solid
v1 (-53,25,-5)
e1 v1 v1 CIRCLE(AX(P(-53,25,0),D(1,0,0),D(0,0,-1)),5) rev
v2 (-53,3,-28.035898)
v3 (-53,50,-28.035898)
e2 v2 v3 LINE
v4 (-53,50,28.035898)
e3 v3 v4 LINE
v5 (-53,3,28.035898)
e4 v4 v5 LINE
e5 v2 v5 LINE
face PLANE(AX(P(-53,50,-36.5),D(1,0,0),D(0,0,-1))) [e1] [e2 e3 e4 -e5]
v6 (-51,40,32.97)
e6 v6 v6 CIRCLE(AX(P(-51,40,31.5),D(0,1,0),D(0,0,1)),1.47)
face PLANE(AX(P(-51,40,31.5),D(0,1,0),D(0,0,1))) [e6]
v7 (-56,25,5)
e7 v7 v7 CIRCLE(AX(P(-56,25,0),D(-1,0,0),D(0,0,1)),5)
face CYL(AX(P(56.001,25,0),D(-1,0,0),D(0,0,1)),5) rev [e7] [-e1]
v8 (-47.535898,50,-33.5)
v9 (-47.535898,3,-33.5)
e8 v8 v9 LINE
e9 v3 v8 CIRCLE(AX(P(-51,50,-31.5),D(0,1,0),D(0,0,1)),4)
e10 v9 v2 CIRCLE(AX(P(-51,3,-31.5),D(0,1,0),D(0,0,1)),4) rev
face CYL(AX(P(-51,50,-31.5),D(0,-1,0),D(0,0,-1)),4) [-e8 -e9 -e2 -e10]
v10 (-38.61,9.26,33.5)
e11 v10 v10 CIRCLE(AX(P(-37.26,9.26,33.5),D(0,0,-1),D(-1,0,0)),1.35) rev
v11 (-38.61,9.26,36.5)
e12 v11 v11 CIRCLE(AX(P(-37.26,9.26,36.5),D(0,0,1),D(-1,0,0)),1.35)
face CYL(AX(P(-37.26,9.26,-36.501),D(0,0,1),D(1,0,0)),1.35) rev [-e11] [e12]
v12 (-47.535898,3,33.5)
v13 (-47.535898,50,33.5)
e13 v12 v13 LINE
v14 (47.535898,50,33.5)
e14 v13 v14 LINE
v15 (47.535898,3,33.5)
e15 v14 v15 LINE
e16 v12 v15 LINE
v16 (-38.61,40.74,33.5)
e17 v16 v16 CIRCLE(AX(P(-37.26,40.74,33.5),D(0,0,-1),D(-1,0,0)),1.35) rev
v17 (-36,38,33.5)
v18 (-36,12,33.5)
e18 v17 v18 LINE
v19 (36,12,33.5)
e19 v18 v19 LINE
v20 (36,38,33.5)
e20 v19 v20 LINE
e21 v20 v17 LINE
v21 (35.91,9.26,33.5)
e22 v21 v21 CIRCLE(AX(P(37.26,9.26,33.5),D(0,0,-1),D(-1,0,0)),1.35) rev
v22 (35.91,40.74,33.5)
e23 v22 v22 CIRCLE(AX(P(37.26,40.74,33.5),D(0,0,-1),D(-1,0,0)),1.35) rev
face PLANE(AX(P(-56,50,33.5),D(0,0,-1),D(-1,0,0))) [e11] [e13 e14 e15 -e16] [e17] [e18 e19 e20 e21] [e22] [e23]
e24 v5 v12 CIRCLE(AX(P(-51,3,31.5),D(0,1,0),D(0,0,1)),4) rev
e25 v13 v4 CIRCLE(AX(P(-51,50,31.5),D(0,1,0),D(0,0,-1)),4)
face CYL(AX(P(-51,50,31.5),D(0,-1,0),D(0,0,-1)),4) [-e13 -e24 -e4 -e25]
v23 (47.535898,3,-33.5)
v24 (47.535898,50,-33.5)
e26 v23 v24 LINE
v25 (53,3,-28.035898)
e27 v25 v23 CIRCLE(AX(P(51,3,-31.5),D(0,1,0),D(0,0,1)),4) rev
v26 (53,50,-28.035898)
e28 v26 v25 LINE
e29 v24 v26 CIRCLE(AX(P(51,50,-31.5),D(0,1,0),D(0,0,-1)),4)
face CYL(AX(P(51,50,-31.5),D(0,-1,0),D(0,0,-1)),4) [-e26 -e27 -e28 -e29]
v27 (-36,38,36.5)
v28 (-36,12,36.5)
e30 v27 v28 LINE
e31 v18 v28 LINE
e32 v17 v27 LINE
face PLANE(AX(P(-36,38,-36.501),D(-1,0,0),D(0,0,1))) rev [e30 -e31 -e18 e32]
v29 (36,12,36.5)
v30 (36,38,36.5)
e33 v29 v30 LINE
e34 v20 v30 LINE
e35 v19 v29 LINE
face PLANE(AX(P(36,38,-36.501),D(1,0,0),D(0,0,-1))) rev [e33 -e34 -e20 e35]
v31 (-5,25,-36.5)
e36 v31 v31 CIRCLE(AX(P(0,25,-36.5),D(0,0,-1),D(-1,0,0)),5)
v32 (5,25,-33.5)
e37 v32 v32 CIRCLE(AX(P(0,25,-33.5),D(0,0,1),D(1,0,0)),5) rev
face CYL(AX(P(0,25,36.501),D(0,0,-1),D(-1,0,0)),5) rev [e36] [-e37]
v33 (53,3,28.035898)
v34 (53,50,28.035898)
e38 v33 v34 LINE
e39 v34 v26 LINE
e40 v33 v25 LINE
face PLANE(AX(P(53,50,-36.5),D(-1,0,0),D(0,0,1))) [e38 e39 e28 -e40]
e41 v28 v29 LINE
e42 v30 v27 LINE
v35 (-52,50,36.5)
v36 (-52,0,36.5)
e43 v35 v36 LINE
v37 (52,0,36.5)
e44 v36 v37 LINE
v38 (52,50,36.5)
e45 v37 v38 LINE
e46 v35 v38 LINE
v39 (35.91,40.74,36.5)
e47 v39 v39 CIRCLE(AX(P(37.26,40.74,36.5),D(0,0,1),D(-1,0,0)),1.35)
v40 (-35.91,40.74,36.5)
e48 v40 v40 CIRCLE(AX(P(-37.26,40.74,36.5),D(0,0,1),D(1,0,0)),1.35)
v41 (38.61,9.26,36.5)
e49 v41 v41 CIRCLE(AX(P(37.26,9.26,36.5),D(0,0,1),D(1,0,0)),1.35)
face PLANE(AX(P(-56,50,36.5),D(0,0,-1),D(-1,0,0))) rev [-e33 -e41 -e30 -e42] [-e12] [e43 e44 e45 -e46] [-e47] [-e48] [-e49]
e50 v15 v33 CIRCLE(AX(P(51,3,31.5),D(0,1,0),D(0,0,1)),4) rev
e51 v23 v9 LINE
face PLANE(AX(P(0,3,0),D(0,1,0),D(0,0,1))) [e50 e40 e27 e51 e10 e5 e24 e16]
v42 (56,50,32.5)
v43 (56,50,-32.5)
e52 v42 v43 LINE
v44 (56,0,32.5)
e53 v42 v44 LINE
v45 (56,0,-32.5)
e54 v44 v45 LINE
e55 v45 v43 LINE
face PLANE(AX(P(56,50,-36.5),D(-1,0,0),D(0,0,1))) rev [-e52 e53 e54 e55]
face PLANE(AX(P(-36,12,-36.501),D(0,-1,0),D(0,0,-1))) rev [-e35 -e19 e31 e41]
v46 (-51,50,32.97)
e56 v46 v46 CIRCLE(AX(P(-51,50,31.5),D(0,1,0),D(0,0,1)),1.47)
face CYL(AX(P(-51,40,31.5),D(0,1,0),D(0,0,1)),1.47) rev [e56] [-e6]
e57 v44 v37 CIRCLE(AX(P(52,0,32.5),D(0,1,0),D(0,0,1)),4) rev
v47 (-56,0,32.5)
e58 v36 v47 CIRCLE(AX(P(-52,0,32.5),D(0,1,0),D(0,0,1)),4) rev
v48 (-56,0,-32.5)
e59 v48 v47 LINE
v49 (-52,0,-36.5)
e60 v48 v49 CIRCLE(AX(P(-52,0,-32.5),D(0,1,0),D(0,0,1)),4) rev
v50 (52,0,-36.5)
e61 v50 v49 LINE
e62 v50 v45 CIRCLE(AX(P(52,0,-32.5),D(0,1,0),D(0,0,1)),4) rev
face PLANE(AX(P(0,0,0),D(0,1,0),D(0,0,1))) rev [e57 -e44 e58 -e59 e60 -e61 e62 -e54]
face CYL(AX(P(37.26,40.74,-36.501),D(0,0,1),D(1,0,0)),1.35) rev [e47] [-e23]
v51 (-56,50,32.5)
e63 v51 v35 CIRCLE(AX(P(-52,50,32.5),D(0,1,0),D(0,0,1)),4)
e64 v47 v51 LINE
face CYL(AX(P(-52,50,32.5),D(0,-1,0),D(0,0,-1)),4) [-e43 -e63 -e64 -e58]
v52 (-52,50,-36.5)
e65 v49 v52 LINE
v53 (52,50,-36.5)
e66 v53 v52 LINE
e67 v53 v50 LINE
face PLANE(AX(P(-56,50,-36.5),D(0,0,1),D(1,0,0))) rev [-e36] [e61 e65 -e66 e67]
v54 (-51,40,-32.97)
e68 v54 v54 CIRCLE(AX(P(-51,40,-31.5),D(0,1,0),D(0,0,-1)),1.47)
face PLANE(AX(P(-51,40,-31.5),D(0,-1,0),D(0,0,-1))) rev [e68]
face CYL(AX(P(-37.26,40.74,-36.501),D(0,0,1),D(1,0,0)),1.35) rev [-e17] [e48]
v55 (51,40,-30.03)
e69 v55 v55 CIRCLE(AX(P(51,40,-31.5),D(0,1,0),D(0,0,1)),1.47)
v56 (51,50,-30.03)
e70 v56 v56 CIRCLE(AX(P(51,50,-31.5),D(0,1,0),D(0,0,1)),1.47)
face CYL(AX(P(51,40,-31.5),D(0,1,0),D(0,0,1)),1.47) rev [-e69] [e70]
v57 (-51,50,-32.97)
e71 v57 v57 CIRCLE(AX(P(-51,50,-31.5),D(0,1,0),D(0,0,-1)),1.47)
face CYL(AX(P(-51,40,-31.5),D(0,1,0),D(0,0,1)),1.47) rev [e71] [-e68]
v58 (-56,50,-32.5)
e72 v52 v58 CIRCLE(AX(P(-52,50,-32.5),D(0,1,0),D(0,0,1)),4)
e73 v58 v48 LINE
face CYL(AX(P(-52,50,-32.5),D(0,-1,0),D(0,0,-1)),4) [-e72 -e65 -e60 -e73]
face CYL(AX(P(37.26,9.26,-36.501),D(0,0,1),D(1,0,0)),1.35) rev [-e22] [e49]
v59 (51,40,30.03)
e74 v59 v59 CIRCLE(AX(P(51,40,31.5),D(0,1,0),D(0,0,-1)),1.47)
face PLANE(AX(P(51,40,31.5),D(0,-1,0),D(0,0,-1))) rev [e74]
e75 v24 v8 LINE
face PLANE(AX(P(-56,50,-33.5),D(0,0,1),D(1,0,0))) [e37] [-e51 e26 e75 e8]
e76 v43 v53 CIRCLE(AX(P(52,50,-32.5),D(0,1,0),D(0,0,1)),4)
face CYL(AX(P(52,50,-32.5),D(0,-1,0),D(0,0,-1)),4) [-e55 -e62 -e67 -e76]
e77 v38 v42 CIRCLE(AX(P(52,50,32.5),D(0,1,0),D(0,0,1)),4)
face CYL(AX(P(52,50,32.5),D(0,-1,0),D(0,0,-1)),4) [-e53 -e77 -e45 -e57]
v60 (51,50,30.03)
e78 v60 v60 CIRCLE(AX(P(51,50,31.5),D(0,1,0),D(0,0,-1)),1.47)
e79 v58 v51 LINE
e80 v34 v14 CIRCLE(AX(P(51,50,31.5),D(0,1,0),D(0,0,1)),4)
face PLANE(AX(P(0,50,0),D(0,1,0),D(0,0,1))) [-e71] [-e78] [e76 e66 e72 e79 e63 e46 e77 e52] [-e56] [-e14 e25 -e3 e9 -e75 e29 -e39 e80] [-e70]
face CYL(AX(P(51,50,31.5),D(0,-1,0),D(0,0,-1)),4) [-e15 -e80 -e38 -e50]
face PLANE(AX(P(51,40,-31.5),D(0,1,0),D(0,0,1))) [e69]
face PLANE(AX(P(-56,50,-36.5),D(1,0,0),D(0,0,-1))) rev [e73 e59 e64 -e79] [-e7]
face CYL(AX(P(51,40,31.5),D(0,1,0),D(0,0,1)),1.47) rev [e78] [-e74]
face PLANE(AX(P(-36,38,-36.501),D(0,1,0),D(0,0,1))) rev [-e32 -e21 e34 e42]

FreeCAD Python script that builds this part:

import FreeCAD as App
import Part
import Sketcher

V = App.Vector
Q = App.Units.Quantity


def edges_at(feature, points):
    """Names of the edges that pass closest to the given points."""
    edges = feature.Shape.Edges
    near = lambda p: min(range(len(edges)), key=lambda i: edges[i].distToShape(Part.Vertex(*p))[0])
    return sorted({f"Edge{near(p) + 1}" for p in points})


def faces_at(feature, points):
    """Names of the faces that lie closest to the given points."""
    faces = feature.Shape.Faces
    near = lambda p: min(range(len(faces)), key=lambda i: faces[i].distToShape(Part.Vertex(*p))[0])
    return sorted({f"Face{near(p) + 1}" for p in points})

doc = App.newDocument("Part")
body = doc.addObject("PartDesign::Body", "Body")

sketch1 = doc.addObject("Sketcher::SketchObject", "Sketch")
body.addObject(sketch1)
sketch1.AttachmentSupport = (doc.XZ_Plane, [""])
sketch1.MapMode = "FlatFace"
sketch1.addGeometry(Part.LineSegment(V(-56, -36, 0), V(-56, 36, 0)), False)
sketch1.addGeometry(Part.LineSegment(V(-56, 36, 0), V(56, 36, 0)), False)
sketch1.addGeometry(Part.LineSegment(V(56, 36, 0), V(56, -36, 0)), False)
sketch1.addGeometry(Part.LineSegment(V(56, -36, 0), V(-56, -36, 0)), False)
sketch1.addConstraint(Sketcher.Constraint("Coincident", 0, 2, 1, 1))
sketch1.addConstraint(Sketcher.Constraint("Coincident", 1, 2, 2, 1))
sketch1.addConstraint(Sketcher.Constraint("Coincident", 2, 2, 3, 1))
sketch1.addConstraint(Sketcher.Constraint("Coincident", 3, 2, 0, 1))
sketch1.addConstraint(Sketcher.Constraint("Vertical", 0))
sketch1.addConstraint(Sketcher.Constraint("Horizontal", 1))
sketch1.addConstraint(Sketcher.Constraint("Vertical", 2))
sketch1.addConstraint(Sketcher.Constraint("Horizontal", 3))
sketch1.addConstraint(Sketcher.Constraint("Symmetric", 0, 2, 2, 2, -1, 1))
sketch1.addConstraint(Sketcher.Constraint("DistanceX", 1, 1, 1, 2, Q("112 mm")))
sketch1.addConstraint(Sketcher.Constraint("DistanceY", 0, 1, 0, 2, Q("73 mm")))
pad1 = doc.addObject("PartDesign::Pad", "Pad")
body.addObject(pad1)
pad1.Profile = sketch1
pad1.Length = 50
pad1.Reversed = True
doc.recompute()

thickness = doc.addObject("PartDesign::Thickness", "Thickness")
body.addObject(thickness)
thickness.Base = (pad1, faces_at(pad1, [(0, 50, 0)]))
thickness.Value = 3
thickness.Reversed = True
thickness.Join = "Intersection"

sketch2 = doc.addObject("Sketcher::SketchObject", "Sketch001")
body.addObject(sketch2)
sketch2.AttachmentSupport = (doc.XZ_Plane, [""])
sketch2.MapMode = "FlatFace"
sketch2.AttachmentOffset = App.Placement(V(0, 0, -2.5), App.Rotation())
sketch2.addGeometry(Part.Circle(V(-51, -31.5, 0), V(0, 0, 1), 4), False)
sketch2.addGeometry(Part.Circle(V(-51, 31.5, 0), V(0, 0, 1), 4), False)
sketch2.addGeometry(Part.Circle(V(51, -31.5, 0), V(0, 0, 1), 4), False)
sketch2.addGeometry(Part.Circle(V(51, 31.5, 0), V(0, 0, 1), 4), False)
sketch2.addConstraint(Sketcher.Constraint("Equal", 0, 1))
sketch2.addConstraint(Sketcher.Constraint("Equal", 1, 2))
sketch2.addConstraint(Sketcher.Constraint("Equal", 2, 3))
sketch2.addConstraint(Sketcher.Constraint("Symmetric", 1, 3, 2, 3, -1, 1))
sketch2.addConstraint(Sketcher.Constraint("Symmetric", 0, 3, 3, 3, -1, 1))
sketch2.addConstraint(Sketcher.Constraint("Symmetric", 0, 3, 2, 3, -2))
sketch2.addConstraint(Sketcher.Constraint("Diameter", 0, Q("8 mm")))
sketch2.addConstraint(Sketcher.Constraint("DistanceX", 0, 3, -1, 1, Q("51 mm")))
sketch2.addConstraint(Sketcher.Constraint("DistanceY", 0, 3, 1, 3, Q("63 mm")))
pad2 = doc.addObject("PartDesign::Pad", "Pad001")
body.addObject(pad2)
pad2.Profile = sketch2
pad2.Length = 47.5
pad2.Reversed = True

sketch3 = doc.addObject("Sketcher::SketchObject", "Sketch002")
body.addObject(sketch3)
sketch3.AttachmentSupport = (doc.XY_Plane, [""])
sketch3.MapMode = "FlatFace"
sketch3.AttachmentOffset = App.Placement(V(0, 0, 36.5), App.Rotation())
sketch3.addGeometry(Part.LineSegment(V(-36, 38, 0), V(-36, 12, 0)), False)
sketch3.addGeometry(Part.LineSegment(V(-36, 12, 0), V(36, 12, 0)), False)
sketch3.addGeometry(Part.LineSegment(V(36, 12, 0), V(36, 38, 0)), False)
sketch3.addGeometry(Part.LineSegment(V(36, 38, 0), V(-36, 38, 0)), False)
sketch3.addConstraint(Sketcher.Constraint("Coincident", 0, 2, 1, 1))
sketch3.addConstraint(Sketcher.Constraint("Coincident", 1, 2, 2, 1))
sketch3.addConstraint(Sketcher.Constraint("Coincident", 2, 2, 3, 1))
sketch3.addConstraint(Sketcher.Constraint("Coincident", 3, 2, 0, 1))
sketch3.addConstraint(Sketcher.Constraint("Vertical", 0))
sketch3.addConstraint(Sketcher.Constraint("Horizontal", 1))
sketch3.addConstraint(Sketcher.Constraint("Vertical", 2))
sketch3.addConstraint(Sketcher.Constraint("Horizontal", 3))
sketch3.addConstraint(Sketcher.Constraint("DistanceX", 1, 1, 1, 2, Q("72 mm")))
sketch3.addConstraint(Sketcher.Constraint("DistanceY", 0, 2, 0, 1, Q("26 mm")))
sketch3.addConstraint(Sketcher.Constraint("DistanceX", 0, 2, -1, 1, Q("36 mm")))
sketch3.addConstraint(Sketcher.Constraint("DistanceY", -1, 1, 0, 2, Q("12 mm")))
pocket1 = doc.addObject("PartDesign::Pocket", "Pocket")
body.addObject(pocket1)
pocket1.Profile = sketch3
pocket1.Type = "UpToFirst"

sketch4 = doc.addObject("Sketcher::SketchObject", "Sketch003")
body.addObject(sketch4)
sketch4.AttachmentSupport = (doc.XZ_Plane, [""])
sketch4.MapMode = "FlatFace"
sketch4.AttachmentOffset = App.Placement(V(0, 0, -50), App.Rotation())
sketch4.addGeometry(Part.Circle(V(51, -31.5, 0), V(0, 0, 1), 1.5), False)
sketch4.addGeometry(Part.Circle(V(51, 31.5, 0), V(0, 0, 1), 1.5), False)
sketch4.addGeometry(Part.Circle(V(-51, 31.5, 0), V(0, 0, 1), 1.5), False)
sketch4.addGeometry(Part.Circle(V(-51, -31.5, 0), V(0, 0, 1), 1.5), False)
sketch4.addConstraint(Sketcher.Constraint("Equal", 0, 1))
sketch4.addConstraint(Sketcher.Constraint("Equal", 1, 2))
sketch4.addConstraint(Sketcher.Constraint("Equal", 2, 3))
sketch4.addConstraint(Sketcher.Constraint("Symmetric", 0, 3, 2, 3, -1, 1))
sketch4.addConstraint(Sketcher.Constraint("Symmetric", 1, 3, 3, 3, -1, 1))
sketch4.addConstraint(Sketcher.Constraint("Symmetric", 1, 3, 2, 3, -2))
sketch4.addConstraint(Sketcher.Constraint("Diameter", 0, Q("2.94 mm")))
sketch4.addConstraint(Sketcher.Constraint("DistanceX", -1, 1, 0, 3, Q("51 mm")))
sketch4.addConstraint(Sketcher.Constraint("DistanceY", 0, 3, 1, 3, Q("63 mm")))
pocket2 = doc.addObject("PartDesign::Pocket", "Pocket001")
body.addObject(pocket2)
pocket2.Profile = sketch4
pocket2.Length = 10
pocket2.Reversed = True
doc.recompute()

fillet = doc.addObject("PartDesign::Fillet", "Fillet")
body.addObject(fillet)
fillet.Base = (pocket2, edges_at(pocket2, [
    (56, 25, 36.5),
    (-56, 25, 36.5),
    (-56, 25, -36.5),
    (56, 25, -36.5),
]))
fillet.Radius = 4

sketch5 = doc.addObject("Sketcher::SketchObject", "Sketch004")
body.addObject(sketch5)
sketch5.AttachmentSupport = (doc.XY_Plane, [""])
sketch5.MapMode = "FlatFace"
sketch5.AttachmentOffset = App.Placement(V(0, 0, 36.5), App.Rotation())
sketch5.addGeometry(Part.Circle(V(-37.3, 40.7, 0), V(0, 0, 1), 1.4), False)
sketch5.addConstraint(Sketcher.Constraint("Diameter", 0, Q("2.7 mm")))
sketch5.addConstraint(Sketcher.Constraint("DistanceX", 0, 3, -1, 1, Q("37.26 mm")))
sketch5.addConstraint(Sketcher.Constraint("DistanceY", -1, 1, 0, 3, Q("40.74 mm")))
pocket3 = doc.addObject("PartDesign::Pocket", "Pocket002")
body.addObject(pocket3)
pocket3.Profile = sketch5
pocket3.Type = "UpToFirst"

sketch6 = doc.addObject("Sketcher::SketchObject", "Sketch005")
body.addObject(sketch6)
sketch6.AttachmentSupport = (doc.XY_Plane, [""])
sketch6.MapMode = "FlatFace"
sketch6.AttachmentOffset = App.Placement(V(0, 0, 36.5), App.Rotation())
sketch6.addGeometry(Part.Circle(V(-37.3, 9.3, 0), V(0, 0, 1), 1.4), False)
sketch6.addConstraint(Sketcher.Constraint("Diameter", 0, Q("2.7 mm")))
sketch6.addConstraint(Sketcher.Constraint("DistanceX", 0, 3, -1, 1, Q("37.26 mm")))
sketch6.addConstraint(Sketcher.Constraint("DistanceY", -1, 1, 0, 3, Q("9.26 mm")))
pocket4 = doc.addObject("PartDesign::Pocket", "Pocket003")
body.addObject(pocket4)
pocket4.Profile = sketch6
pocket4.Type = "UpToFirst"

sketch7 = doc.addObject("Sketcher::SketchObject", "Sketch006")
body.addObject(sketch7)
sketch7.AttachmentSupport = (doc.XY_Plane, [""])
sketch7.MapMode = "FlatFace"
sketch7.AttachmentOffset = App.Placement(V(0, 0, 36.5), App.Rotation())
sketch7.addGeometry(Part.Circle(V(37.3, 40.7, 0), V(0, 0, 1), 1.4), False)
sketch7.addConstraint(Sketcher.Constraint("Diameter", 0, Q("2.7 mm")))
sketch7.addConstraint(Sketcher.Constraint("DistanceX", -1, 1, 0, 3, Q("37.26 mm")))
sketch7.addConstraint(Sketcher.Constraint("DistanceY", -1, 1, 0, 3, Q("40.74 mm")))
pocket5 = doc.addObject("PartDesign::Pocket", "Pocket004")
body.addObject(pocket5)
pocket5.Profile = sketch7
pocket5.Type = "UpToFirst"

sketch8 = doc.addObject("Sketcher::SketchObject", "Sketch007")
body.addObject(sketch8)
sketch8.AttachmentSupport = (doc.XY_Plane, [""])
sketch8.MapMode = "FlatFace"
sketch8.AttachmentOffset = App.Placement(V(0, 0, 36.5), App.Rotation())
sketch8.addGeometry(Part.Circle(V(37.3, 9.3, 0), V(0, 0, 1), 1.4), False)
sketch8.addConstraint(Sketcher.Constraint("Diameter", 0, Q("2.7 mm")))
sketch8.addConstraint(Sketcher.Constraint("DistanceX", -1, 1, 0, 3, Q("37.26 mm")))
sketch8.addConstraint(Sketcher.Constraint("DistanceY", -1, 1, 0, 3, Q("9.26 mm")))
pocket6 = doc.addObject("PartDesign::Pocket", "Pocket005")
body.addObject(pocket6)
pocket6.Profile = sketch8
pocket6.Type = "UpToFirst"

sketch9 = doc.addObject("Sketcher::SketchObject", "Sketch008")
body.addObject(sketch9)
sketch9.AttachmentSupport = (doc.XY_Plane, [""])
sketch9.MapMode = "FlatFace"
sketch9.AttachmentOffset = App.Placement(V(0, 0, -36.5), App.Rotation())
sketch9.addGeometry(Part.Circle(V(0, 25, 0), V(0, 0, 1), 5), False)
sketch9.addConstraint(Sketcher.Constraint("PointOnObject", 0, 3, -2))
sketch9.addConstraint(Sketcher.Constraint("Diameter", 0, Q("10 mm")))
sketch9.addConstraint(Sketcher.Constraint("DistanceY", -1, 1, 0, 3, Q("25 mm")))
pocket7 = doc.addObject("PartDesign::Pocket", "Pocket006")
body.addObject(pocket7)
pocket7.Profile = sketch9
pocket7.Type = "UpToFirst"
pocket7.Reversed = True

sketch10 = doc.addObject("Sketcher::SketchObject", "Sketch009")
body.addObject(sketch10)
sketch10.AttachmentSupport = (doc.YZ_Plane, [""])
sketch10.MapMode = "FlatFace"
sketch10.AttachmentOffset = App.Placement(V(0, 0, -56), App.Rotation())
sketch10.addGeometry(Part.Circle(V(25, 0, 0), V(0, 0, 1), 5), False)
sketch10.addConstraint(Sketcher.Constraint("PointOnObject", 0, 3, -1))
sketch10.addConstraint(Sketcher.Constraint("Diameter", 0, Q("10 mm")))
sketch10.addConstraint(Sketcher.Constraint("DistanceX", -1, 1, 0, 3, Q("25 mm")))
pocket8 = doc.addObject("PartDesign::Pocket", "Pocket007")
body.addObject(pocket8)
pocket8.Profile = sketch10
pocket8.Type = "UpToFirst"
pocket8.Reversed = True

doc.recompute()
